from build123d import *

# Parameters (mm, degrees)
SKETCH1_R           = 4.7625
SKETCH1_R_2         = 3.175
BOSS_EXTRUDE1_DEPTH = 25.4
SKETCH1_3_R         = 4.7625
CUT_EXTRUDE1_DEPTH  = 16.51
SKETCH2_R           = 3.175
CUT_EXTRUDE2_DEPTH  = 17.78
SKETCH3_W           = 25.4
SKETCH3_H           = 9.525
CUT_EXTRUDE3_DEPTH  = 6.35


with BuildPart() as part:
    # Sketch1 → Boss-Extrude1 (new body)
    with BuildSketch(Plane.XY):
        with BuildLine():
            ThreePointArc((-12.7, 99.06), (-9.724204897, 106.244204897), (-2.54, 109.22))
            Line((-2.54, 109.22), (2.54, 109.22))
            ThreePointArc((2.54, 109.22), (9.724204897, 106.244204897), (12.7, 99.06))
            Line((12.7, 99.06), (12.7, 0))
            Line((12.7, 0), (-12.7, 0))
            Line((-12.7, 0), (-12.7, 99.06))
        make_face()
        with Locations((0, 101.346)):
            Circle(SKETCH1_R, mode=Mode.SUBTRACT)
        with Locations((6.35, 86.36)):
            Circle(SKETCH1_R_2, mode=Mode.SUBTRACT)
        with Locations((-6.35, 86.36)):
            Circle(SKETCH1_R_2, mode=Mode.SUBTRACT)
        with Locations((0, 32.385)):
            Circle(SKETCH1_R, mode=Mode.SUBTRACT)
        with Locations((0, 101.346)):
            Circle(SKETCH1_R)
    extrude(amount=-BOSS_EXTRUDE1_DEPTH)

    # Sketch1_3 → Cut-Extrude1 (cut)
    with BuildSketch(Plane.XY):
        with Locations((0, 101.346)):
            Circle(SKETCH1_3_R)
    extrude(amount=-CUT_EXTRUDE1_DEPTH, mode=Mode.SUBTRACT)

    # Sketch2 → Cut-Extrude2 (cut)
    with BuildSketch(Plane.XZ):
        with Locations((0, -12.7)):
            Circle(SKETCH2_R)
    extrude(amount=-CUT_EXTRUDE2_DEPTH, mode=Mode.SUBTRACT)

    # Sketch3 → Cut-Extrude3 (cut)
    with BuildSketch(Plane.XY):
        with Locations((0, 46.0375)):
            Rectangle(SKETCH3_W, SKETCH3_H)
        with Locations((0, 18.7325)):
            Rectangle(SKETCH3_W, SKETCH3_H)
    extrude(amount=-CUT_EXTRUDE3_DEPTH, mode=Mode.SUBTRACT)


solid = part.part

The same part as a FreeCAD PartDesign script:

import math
import FreeCAD as App
import Part
import Sketcher
Q = App.Units.Quantity

doc = App.newDocument("Part")
body = doc.addObject("PartDesign::Body", "Body")

# Sketch on XY plane
sketch1 = doc.addObject("Sketcher::SketchObject", "Sketch")
body.addObject(sketch1)
sketch1.AttachmentSupport = (doc.XY_Plane, [""])
sketch1.MapMode = "FlatFace"
sketch1.addGeometry(Part.ArcOfCircle(Part.Circle(App.Vector(-2.5, 99.1, 0), App.Vector(0, 0, 1), 10.2), math.radians(90), math.radians(180)), False)
sketch1.addGeometry(Part.LineSegment(App.Vector(-12.7, 99.1, 0), App.Vector(-12.7, 0, 0)), False)
sketch1.addGeometry(Part.LineSegment(App.Vector(-12.7, 0, 0), App.Vector(12.7, 0, 0)), False)
sketch1.addGeometry(Part.LineSegment(App.Vector(12.7, 0, 0), App.Vector(12.7, 99.1, 0)), False)
sketch1.addGeometry(Part.ArcOfCircle(Part.Circle(App.Vector(2.5, 99.1, 0), App.Vector(0, 0, 1), 10.2), math.radians(0), math.radians(90)), False)
sketch1.addGeometry(Part.LineSegment(App.Vector(2.5, 109.2, 0), App.Vector(-2.5, 109.2, 0)), False)
sketch1.addGeometry(Part.Circle(App.Vector(0, 32.4, 0), App.Vector(0, 0, 1), 4.8), False)
sketch1.addGeometry(Part.Circle(App.Vector(6.3, 86.4, 0), App.Vector(0, 0, 1), 3.2), False)
sketch1.addGeometry(Part.Circle(App.Vector(-6.3, 86.4, 0), App.Vector(0, 0, 1), 3.2), False)
sketch1.addConstraint(Sketcher.Constraint("Tangent", 0, 2, 1, 1))
sketch1.addConstraint(Sketcher.Constraint("Coincident", 1, 2, 2, 1))
sketch1.addConstraint(Sketcher.Constraint("Coincident", 2, 2, 3, 1))
sketch1.addConstraint(Sketcher.Constraint("Tangent", 3, 2, 4, 1))
sketch1.addConstraint(Sketcher.Constraint("Tangent", 4, 2, 5, 1))
sketch1.addConstraint(Sketcher.Constraint("Tangent", 5, 2, 0, 1))
sketch1.addConstraint(Sketcher.Constraint("Vertical", 1))
sketch1.addConstraint(Sketcher.Constraint("Horizontal", 2))
sketch1.addConstraint(Sketcher.Constraint("Vertical", 3))
sketch1.addConstraint(Sketcher.Constraint("Horizontal", 5))
sketch1.addConstraint(Sketcher.Constraint("Equal", 0, 4))
sketch1.addConstraint(Sketcher.Constraint("Equal", 7, 8))
sketch1.addConstraint(Sketcher.Constraint("Symmetric", 1, 2, 2, 2, -1, 1))
sketch1.addConstraint(Sketcher.Constraint("Symmetric", 7, 3, 8, 3, -2))
sketch1.addConstraint(Sketcher.Constraint("PointOnObject", 6, 3, -2))
sketch1.addConstraint(Sketcher.Constraint("Radius", 0, Q("0.4 in")))
sketch1.addConstraint(Sketcher.Constraint("Diameter", 7, Q("0.25 in")))
sketch1.addConstraint(Sketcher.Constraint("DistanceX", 2, 1, 2, 2, Q("1 in")))
sketch1.addConstraint(Sketcher.Constraint("Diameter", 6, Q("0.375 in")))
sketch1.addConstraint(Sketcher.Constraint("DistanceY", 1, 2, 1, 1, Q("3.9 in")))
sketch1.addConstraint(Sketcher.Constraint("DistanceY", -1, 1, 7, 3, Q("3.4 in")))
sketch1.addConstraint(Sketcher.Constraint("DistanceX", 8, 3, 7, 3, Q("0.5 in")))
sketch1.addConstraint(Sketcher.Constraint("DistanceY", -1, 1, 6, 3, Q("1.275 in")))
pad1 = doc.addObject("PartDesign::Pad", "Pad")
body.addObject(pad1)
pad1.Profile = sketch1
pad1.Length = Q("1 in")
pad1.Reversed = True

# Sketch on XY plane
sketch2 = doc.addObject("Sketcher::SketchObject", "Sketch001")
body.addObject(sketch2)
sketch2.AttachmentSupport = (doc.XY_Plane, [""])
sketch2.MapMode = "FlatFace"
sketch2.addGeometry(Part.Circle(App.Vector(0, 101.3, 0), App.Vector(0, 0, 1), 4.8), False)
sketch2.addConstraint(Sketcher.Constraint("PointOnObject", 0, 3, -2))
sketch2.addConstraint(Sketcher.Constraint("Diameter", 0, Q("0.375 in")))
sketch2.addConstraint(Sketcher.Constraint("DistanceY", -1, 1, 0, 3, Q("3.99 in")))
pocket1 = doc.addObject("PartDesign::Pocket", "Pocket")
body.addObject(pocket1)
pocket1.Profile = sketch2
pocket1.Length = Q("0.65 in")

# Sketch on XZ plane
sketch3 = doc.addObject("Sketcher::SketchObject", "Sketch002")
body.addObject(sketch3)
sketch3.AttachmentSupport = (doc.XZ_Plane, [""])
sketch3.MapMode = "FlatFace"
sketch3.addGeometry(Part.Circle(App.Vector(0, -12.7, 0), App.Vector(0, 0, 1), 3.2), False)
sketch3.addConstraint(Sketcher.Constraint("PointOnObject", 0, 3, -2))
sketch3.addConstraint(Sketcher.Constraint("Diameter", 0, Q("0.25 in")))
sketch3.addConstraint(Sketcher.Constraint("DistanceY", 0, 3, -1, 1, Q("0.5 in")))
pocket2 = doc.addObject("PartDesign::Pocket", "Pocket001")
body.addObject(pocket2)
pocket2.Profile = sketch3
pocket2.Length = Q("0.7 in")

# Sketch on XY plane
sketch4 = doc.addObject("Sketcher::SketchObject", "Sketch003")
body.addObject(sketch4)
sketch4.AttachmentSupport = (doc.XY_Plane, [""])
sketch4.MapMode = "FlatFace"
sketch4.addGeometry(Part.LineSegment(App.Vector(-13, 51, 0), App.Vector(-13, 41, 0)), False)
sketch4.addGeometry(Part.LineSegment(App.Vector(-13, 41, 0), App.Vector(13, 41, 0)), False)
sketch4.addGeometry(Part.LineSegment(App.Vector(13, 41, 0), App.Vector(13, 51, 0)), False)
sketch4.addGeometry(Part.LineSegment(App.Vector(13, 51, 0), App.Vector(-13, 51, 0)), False)
sketch4.addGeometry(Part.LineSegment(App.Vector(-13, 23, 0), App.Vector(-13, 14, 0)), False)
sketch4.addGeometry(Part.LineSegment(App.Vector(-13, 14, 0), App.Vector(13, 14, 0)), False)
sketch4.addGeometry(Part.LineSegment(App.Vector(13, 14, 0), App.Vector(13, 23, 0)), False)
sketch4.addGeometry(Part.LineSegment(App.Vector(13, 23, 0), App.Vector(-13, 23, 0)), False)
sketch4.addConstraint(Sketcher.Constraint("Coincident", 0, 2, 1, 1))
sketch4.addConstraint(Sketcher.Constraint("Coincident", 1, 2, 2, 1))
sketch4.addConstraint(Sketcher.Constraint("Coincident", 2, 2, 3, 1))
sketch4.addConstraint(Sketcher.Constraint("Coincident", 3, 2, 0, 1))
sketch4.addConstraint(Sketcher.Constraint("Coincident", 4, 2, 5, 1))
sketch4.addConstraint(Sketcher.Constraint("Coincident", 5, 2, 6, 1))
sketch4.addConstraint(Sketcher.Constraint("Coincident", 6, 2, 7, 1))
sketch4.addConstraint(Sketcher.Constraint("Coincident", 7, 2, 4, 1))
sketch4.addConstraint(Sketcher.Constraint("Vertical", 0))
sketch4.addConstraint(Sketcher.Constraint("Horizontal", 1))
sketch4.addConstraint(Sketcher.Constraint("Vertical", 2))
sketch4.addConstraint(Sketcher.Constraint("Horizontal", 3))
sketch4.addConstraint(Sketcher.Constraint("Vertical", 4))
sketch4.addConstraint(Sketcher.Constraint("Horizontal", 5))
sketch4.addConstraint(Sketcher.Constraint("Vertical", 6))
sketch4.addConstraint(Sketcher.Constraint("Horizontal", 7))
sketch4.addConstraint(Sketcher.Constraint("Vertical", 3, 2, 4, 2))
sketch4.addConstraint(Sketcher.Constraint("Vertical", 2, 2, 5, 2))
sketch4.addConstraint(Sketcher.Constraint("Equal", 2, 4))
sketch4.addConstraint(Sketcher.Constraint("DistanceX", 1, 1, 1, 2, Q("1 in")))
sketch4.addConstraint(Sketcher.Constraint("DistanceY", -1, 1, 2, 2, Q("2 in")))
sketch4.addConstraint(Sketcher.Constraint("DistanceX", 0, 2, -1, 1, Q("0.5 in")))
sketch4.addConstraint(Sketcher.Constraint("DistanceY", 6, 2, 1, 2, Q("0.7 in")))
sketch4.addConstraint(Sketcher.Constraint("DistanceY", 0, 2, 0, 1, Q("0.375 in")))
pocket3 = doc.addObject("PartDesign::Pocket", "Pocket002")
body.addObject(pocket3)
pocket3.Profile = sketch4
pocket3.Length = Q("0.25 in")

doc.recompute()
